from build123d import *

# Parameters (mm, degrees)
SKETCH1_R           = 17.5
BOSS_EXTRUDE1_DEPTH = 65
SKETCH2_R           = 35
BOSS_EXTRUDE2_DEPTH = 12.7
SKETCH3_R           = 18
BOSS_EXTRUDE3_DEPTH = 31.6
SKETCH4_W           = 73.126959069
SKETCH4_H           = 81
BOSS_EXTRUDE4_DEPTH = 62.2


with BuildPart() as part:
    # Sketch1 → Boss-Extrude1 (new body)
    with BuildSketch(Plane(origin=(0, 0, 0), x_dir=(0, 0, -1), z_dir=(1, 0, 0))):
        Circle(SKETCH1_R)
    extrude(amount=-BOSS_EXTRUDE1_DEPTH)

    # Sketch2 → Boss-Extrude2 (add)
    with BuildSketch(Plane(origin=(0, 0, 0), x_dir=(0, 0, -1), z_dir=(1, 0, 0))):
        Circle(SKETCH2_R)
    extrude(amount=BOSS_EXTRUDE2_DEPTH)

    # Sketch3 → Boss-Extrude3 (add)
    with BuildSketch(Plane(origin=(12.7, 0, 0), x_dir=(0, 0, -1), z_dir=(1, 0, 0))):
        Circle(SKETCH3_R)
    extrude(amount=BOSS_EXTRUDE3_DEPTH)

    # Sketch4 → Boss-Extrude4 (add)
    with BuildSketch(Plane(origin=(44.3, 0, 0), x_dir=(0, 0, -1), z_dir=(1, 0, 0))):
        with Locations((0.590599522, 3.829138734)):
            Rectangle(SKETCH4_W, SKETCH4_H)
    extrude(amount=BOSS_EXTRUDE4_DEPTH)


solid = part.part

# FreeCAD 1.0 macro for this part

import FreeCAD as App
import Part
import Sketcher

doc = App.newDocument("Part")
body = doc.addObject("PartDesign::Body", "Body")

sketch1 = body.newObject("Sketcher::SketchObject", "Sketch")
sketch1.AttachmentSupport = (doc.getObject("YZ_Plane"), [""])
sketch1.MapMode = "FlatFace"
sketch1.addGeometry(Part.Circle(App.Vector(0, 0, 0), App.Vector(0, 0, 1), 17.5), False)
sketch1.addConstraint([
    Sketcher.Constraint("Coincident", 0, 3, -1, 1),
    Sketcher.Constraint("Diameter", 0, 35.0),
])
pad1 = body.newObject("PartDesign::Pad", "Pad")
pad1.Profile = sketch1
pad1.Length = 65
pad1.Reversed = True

sketch2 = body.newObject("Sketcher::SketchObject", "Sketch001")
sketch2.AttachmentSupport = (doc.getObject("YZ_Plane"), [""])
sketch2.MapMode = "FlatFace"
sketch2.addGeometry(Part.Circle(App.Vector(0, 0, 0), App.Vector(0, 0, 1), 35), False)
sketch2.addConstraint([
    Sketcher.Constraint("Coincident", 0, 3, -1, 1),
    Sketcher.Constraint("Diameter", 0, 70.0),
])
pad2 = body.newObject("PartDesign::Pad", "Pad001")
pad2.Profile = sketch2
pad2.Length = 12.7

sketch3 = body.newObject("Sketcher::SketchObject", "Sketch002")
sketch3.AttachmentSupport = (doc.getObject("YZ_Plane"), [""])
sketch3.MapMode = "FlatFace"
sketch3.AttachmentOffset = App.Placement(App.Vector(0, 0, 12.7), App.Rotation())
sketch3.addGeometry(Part.Circle(App.Vector(0, 0, 0), App.Vector(0, 0, 1), 18), False)
sketch3.addConstraint([
    Sketcher.Constraint("Coincident", 0, 3, -1, 1),
    Sketcher.Constraint("Diameter", 0, 36.0),
])
pad3 = body.newObject("PartDesign::Pad", "Pad002")
pad3.Profile = sketch3
pad3.Length = 31.6

sketch4 = body.newObject("Sketcher::SketchObject", "Sketch003")
sketch4.AttachmentSupport = (doc.getObject("YZ_Plane"), [""])
sketch4.MapMode = "FlatFace"
sketch4.AttachmentOffset = App.Placement(App.Vector(0, 0, 44.3), App.Rotation())
sketch4.addGeometry([
    Part.LineSegment(App.Vector(44.329139, 35.97288, 0), App.Vector(-36.670861, 35.97288, 0)),
    Part.LineSegment(App.Vector(-36.670861, 35.97288, 0), App.Vector(-36.670861, -37.154079, 0)),
    Part.LineSegment(App.Vector(-36.670861, -37.154079, 0), App.Vector(44.329139, -37.154079, 0)),
    Part.LineSegment(App.Vector(44.329139, -37.154079, 0), App.Vector(44.329139, 35.97288, 0)),
], False)
sketch4.addConstraint([
    Sketcher.Constraint("Coincident", 0, 2, 1, 1),
    Sketcher.Constraint("Coincident", 1, 2, 2, 1),
    Sketcher.Constraint("Coincident", 2, 2, 3, 1),
    Sketcher.Constraint("Coincident", 3, 2, 0, 1),
    Sketcher.Constraint("Horizontal", 0),
    Sketcher.Constraint("Vertical", 1),
    Sketcher.Constraint("Horizontal", 2),
    Sketcher.Constraint("Vertical", 3),
    Sketcher.Constraint("DistanceX", 0, 2, 0, 1, 81.0),
    Sketcher.Constraint("DistanceY", 1, 2, 1, 1, 73.126959),
    Sketcher.Constraint("DistanceX", 0, 2, -1, 1, 36.670861),
    Sketcher.Constraint("DistanceY", -1, 1, 0, 2, 35.97288),
])
pad4 = body.newObject("PartDesign::Pad", "Pad003")
pad4.Profile = sketch4
pad4.Length = 62.2

doc.recompute()
